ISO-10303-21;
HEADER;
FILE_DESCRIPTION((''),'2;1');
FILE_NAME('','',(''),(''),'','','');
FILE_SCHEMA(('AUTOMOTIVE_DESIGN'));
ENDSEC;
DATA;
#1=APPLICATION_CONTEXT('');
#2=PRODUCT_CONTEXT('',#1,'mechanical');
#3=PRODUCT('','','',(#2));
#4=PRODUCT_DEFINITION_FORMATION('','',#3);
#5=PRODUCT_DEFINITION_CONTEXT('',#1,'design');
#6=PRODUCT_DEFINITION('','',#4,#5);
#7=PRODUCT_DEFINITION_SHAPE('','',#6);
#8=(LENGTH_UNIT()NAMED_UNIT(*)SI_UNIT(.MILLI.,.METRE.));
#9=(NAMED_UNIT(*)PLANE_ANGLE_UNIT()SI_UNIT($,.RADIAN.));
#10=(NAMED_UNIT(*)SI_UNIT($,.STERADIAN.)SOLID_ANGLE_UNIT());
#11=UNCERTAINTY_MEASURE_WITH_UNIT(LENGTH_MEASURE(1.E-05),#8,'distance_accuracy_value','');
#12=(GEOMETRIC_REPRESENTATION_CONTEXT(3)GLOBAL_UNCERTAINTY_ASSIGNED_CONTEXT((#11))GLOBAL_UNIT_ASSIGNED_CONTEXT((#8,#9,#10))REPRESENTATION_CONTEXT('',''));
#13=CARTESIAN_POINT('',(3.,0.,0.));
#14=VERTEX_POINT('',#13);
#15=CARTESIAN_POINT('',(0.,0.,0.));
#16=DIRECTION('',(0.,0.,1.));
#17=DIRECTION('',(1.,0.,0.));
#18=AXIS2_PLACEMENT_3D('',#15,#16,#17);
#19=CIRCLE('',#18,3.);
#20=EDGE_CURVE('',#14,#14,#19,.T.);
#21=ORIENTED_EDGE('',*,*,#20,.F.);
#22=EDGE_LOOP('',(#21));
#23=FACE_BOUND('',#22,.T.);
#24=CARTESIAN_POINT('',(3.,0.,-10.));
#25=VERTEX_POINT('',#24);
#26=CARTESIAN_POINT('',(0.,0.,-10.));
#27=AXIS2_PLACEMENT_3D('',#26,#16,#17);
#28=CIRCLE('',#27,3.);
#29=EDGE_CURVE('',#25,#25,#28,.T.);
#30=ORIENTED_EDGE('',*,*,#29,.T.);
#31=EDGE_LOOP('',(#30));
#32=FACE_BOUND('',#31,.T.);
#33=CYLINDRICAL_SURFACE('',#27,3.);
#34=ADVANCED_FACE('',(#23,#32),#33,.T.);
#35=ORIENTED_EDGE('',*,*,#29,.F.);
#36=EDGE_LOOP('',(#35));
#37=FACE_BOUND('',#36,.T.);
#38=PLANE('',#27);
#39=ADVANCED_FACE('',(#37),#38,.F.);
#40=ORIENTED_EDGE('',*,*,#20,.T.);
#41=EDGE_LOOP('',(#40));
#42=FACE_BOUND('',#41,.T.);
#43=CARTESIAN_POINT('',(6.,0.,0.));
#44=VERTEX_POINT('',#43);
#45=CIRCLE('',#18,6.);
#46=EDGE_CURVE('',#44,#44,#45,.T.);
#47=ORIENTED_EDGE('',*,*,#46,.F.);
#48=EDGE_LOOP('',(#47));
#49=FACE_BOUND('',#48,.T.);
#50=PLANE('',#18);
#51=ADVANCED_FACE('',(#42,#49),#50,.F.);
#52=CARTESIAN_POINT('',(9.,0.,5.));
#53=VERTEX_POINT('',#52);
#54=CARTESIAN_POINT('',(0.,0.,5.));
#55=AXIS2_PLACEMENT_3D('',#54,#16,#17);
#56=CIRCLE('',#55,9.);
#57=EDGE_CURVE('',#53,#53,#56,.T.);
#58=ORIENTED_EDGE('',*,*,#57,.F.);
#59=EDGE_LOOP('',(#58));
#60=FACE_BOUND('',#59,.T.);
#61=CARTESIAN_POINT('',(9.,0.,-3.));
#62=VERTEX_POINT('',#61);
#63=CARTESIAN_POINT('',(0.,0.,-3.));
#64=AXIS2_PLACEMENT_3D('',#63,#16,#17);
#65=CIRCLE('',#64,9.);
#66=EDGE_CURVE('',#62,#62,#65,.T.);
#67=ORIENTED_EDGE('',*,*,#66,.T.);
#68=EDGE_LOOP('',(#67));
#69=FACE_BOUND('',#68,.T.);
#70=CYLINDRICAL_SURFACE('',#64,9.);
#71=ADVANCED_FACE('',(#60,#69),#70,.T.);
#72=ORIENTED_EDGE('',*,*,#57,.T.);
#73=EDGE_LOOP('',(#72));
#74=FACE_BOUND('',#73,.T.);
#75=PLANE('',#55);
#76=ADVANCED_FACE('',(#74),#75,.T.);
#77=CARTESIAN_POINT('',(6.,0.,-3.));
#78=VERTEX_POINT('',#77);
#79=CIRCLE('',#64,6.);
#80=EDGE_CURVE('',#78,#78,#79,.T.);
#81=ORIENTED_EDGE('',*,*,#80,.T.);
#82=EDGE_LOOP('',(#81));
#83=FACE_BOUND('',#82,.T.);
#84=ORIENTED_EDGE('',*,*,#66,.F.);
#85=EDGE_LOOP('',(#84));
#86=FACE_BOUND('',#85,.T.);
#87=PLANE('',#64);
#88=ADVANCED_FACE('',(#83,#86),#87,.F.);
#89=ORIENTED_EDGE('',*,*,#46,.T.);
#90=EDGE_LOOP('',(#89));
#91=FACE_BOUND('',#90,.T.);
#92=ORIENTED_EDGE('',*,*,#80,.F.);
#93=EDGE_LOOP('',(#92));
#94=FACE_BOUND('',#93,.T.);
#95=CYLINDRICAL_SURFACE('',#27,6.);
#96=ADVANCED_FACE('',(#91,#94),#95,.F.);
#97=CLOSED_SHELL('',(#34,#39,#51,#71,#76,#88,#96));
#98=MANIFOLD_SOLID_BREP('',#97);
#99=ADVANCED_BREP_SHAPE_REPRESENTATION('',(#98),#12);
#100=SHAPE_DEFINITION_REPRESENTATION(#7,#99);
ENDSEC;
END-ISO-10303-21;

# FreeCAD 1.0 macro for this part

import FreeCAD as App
import Part
import Sketcher
from FreeCAD import Vector

doc = App.newDocument("Part")
body = doc.addObject("PartDesign::Body", "Body")

# Sketch on XY plane
sketch1 = body.newObject("Sketcher::SketchObject", "Sketch")
sketch1.AttachmentSupport = (doc.getObject("XY_Plane"), [""])
sketch1.MapMode = "FlatFace"
sketch1.addGeometry(Part.Circle(Vector(0, 0, 0), Vector(0, 0, 1), 9), False)
sketch1.addConstraint([
    Sketcher.Constraint("Coincident", 0, 3, -1, 1),
    Sketcher.Constraint("Diameter", 0, 18.0),
])
pad1 = body.newObject("PartDesign::Pad", "Pad")
pad1.Profile = sketch1
pad1.Type = "TwoLengths"
pad1.Length = 5
pad1.Length2 = 3

# Sketch on XY plane
sketch2 = body.newObject("Sketcher::SketchObject", "Sketch001")
sketch2.AttachmentSupport = (doc.getObject("XY_Plane"), [""])
sketch2.MapMode = "FlatFace"
sketch2.addGeometry(Part.Circle(Vector(0, 0, 0), Vector(0, 0, 1), 3), False)
sketch2.addConstraint([
    Sketcher.Constraint("Coincident", 0, 3, -1, 1),
    Sketcher.Constraint("Diameter", 0, 6.0),
])
pad2 = body.newObject("PartDesign::Pad", "Pad001")
pad2.Profile = sketch2
pad2.Length = 10
pad2.Reversed = True

# Sketch on XY plane
sketch3 = body.newObject("Sketcher::SketchObject", "Sketch002")
sketch3.AttachmentSupport = (doc.getObject("XY_Plane"), [""])
sketch3.MapMode = "FlatFace"
sketch3.addGeometry([
    Part.Circle(Vector(0, 0, 0), Vector(0, 0, 1), 6),
    Part.Circle(Vector(0, 0, 0), Vector(0, 0, 1), 3),
], False)
sketch3.addConstraint([
    Sketcher.Constraint("Coincident", 0, 3, -1, 1),
    Sketcher.Constraint("Coincident", 1, 3, -1, 1),
    Sketcher.Constraint("Diameter", 0, 12.0),
    Sketcher.Constraint("Diameter", 1, 6.0),
])
pocket1 = body.newObject("PartDesign::Pocket", "Pocket")
pocket1.Profile = sketch3
pocket1.Length = 10

doc.recompute()
